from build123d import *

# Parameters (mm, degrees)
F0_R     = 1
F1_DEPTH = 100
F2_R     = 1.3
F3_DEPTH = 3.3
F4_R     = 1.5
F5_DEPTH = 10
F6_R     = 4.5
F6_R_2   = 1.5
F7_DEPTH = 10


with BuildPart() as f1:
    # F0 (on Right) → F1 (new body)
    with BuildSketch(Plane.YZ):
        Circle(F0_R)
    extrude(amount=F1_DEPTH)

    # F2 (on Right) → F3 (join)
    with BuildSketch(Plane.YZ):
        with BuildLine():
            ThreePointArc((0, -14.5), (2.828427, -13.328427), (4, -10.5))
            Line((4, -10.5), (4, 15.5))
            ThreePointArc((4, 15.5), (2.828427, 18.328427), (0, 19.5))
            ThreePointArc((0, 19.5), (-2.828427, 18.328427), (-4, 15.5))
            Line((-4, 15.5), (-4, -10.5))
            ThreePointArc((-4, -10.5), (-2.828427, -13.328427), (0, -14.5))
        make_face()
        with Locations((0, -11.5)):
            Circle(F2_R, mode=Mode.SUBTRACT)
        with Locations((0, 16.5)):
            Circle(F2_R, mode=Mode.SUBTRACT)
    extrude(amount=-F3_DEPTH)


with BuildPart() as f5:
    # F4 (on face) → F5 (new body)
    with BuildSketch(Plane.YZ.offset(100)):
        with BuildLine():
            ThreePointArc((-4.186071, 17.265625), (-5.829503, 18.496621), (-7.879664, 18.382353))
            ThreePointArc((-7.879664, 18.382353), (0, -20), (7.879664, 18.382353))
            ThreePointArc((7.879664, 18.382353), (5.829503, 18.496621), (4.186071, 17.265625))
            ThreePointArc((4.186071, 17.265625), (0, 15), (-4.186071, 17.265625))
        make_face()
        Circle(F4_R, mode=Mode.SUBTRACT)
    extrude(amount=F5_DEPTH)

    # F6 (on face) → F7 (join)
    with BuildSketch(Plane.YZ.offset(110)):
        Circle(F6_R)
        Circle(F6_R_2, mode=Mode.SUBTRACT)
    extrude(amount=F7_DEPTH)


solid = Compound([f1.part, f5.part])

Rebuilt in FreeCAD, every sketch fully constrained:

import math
import FreeCAD as App
import Part
import Sketcher

V = App.Vector

doc = App.newDocument("Part")
params = doc.addObject("Spreadsheet::Sheet", "Params")
for row, (alias, value) in enumerate([
    ("sketch1_diameter", "2 mm"),
    ("pad1_length", "100 mm"),
    ("sketch2_radius", "4 mm"),
    ("sketch2_diameter", "2.6 mm"),
    ("sketch2_height", "26 mm"),
    ("pad2_length", "3.3 mm"),
    ("sketch3_diameter", "3 mm"),
    ("sketch3_radius", "20 mm"),
    ("sketch3_radius2", "4.999999 mm"),
    ("pad3_length", "10 mm"),
    ("sketch4_diameter", "9 mm"),
    ("sketch4_diameter2", "3 mm"),
    ("pad4_length", "10 mm"),
], start=1):
    params.set(f"A{row}", alias)
    params.set(f"B{row}", "=" + value)
    params.setAlias(f"B{row}", alias)

body = doc.addObject("PartDesign::Body", "Body")

sketch1 = body.newObject("Sketcher::SketchObject", "Sketch")
sketch1.AttachmentSupport = (doc.getObject("YZ_Plane"), [""])
sketch1.MapMode = "FlatFace"
sketch1.addGeometry(Part.Circle(V(0, 0, 0), V(0, 0, 1), 1), False)
sketch1.addConstraint(Sketcher.Constraint("Coincident", 0, 3, -1, 1))
sketch1.addConstraint(Sketcher.Constraint("Diameter", 0, 2.0))
sketch1.setExpression("Constraints[1]", "Params.sketch1_diameter")
pad1 = body.newObject("PartDesign::Pad", "Pad")
pad1.Profile = sketch1
pad1.setExpression("Length", "Params.pad1_length")

sketch2 = body.newObject("Sketcher::SketchObject", "Sketch001")
sketch2.AttachmentSupport = (doc.getObject("YZ_Plane"), [""])
sketch2.MapMode = "FlatFace"
sketch2.addGeometry(Part.ArcOfCircle(Part.Circle(V(0, -10.5, 0), V(0, 0, 1), 4), math.radians(-90), math.radians(0)), False)
sketch2.addGeometry(Part.LineSegment(V(4, -10.5, 0), V(4, 15.5, 0)), False)
sketch2.addGeometry(Part.ArcOfCircle(Part.Circle(V(0, 15.5, 0), V(0, 0, 1), 4), math.radians(0), math.radians(90)), False)
sketch2.addGeometry(Part.ArcOfCircle(Part.Circle(V(0, 15.5, 0), V(0, 0, 1), 4), math.radians(90), math.radians(180)), False)
sketch2.addGeometry(Part.LineSegment(V(-4, 15.5, 0), V(-4, -10.5, 0)), False)
sketch2.addGeometry(Part.ArcOfCircle(Part.Circle(V(0, -10.5, 0), V(0, 0, 1), 4), math.radians(-180), math.radians(-90)), False)
sketch2.addGeometry(Part.Circle(V(0, -11.5, 0), V(0, 0, 1), 1.3), False)
sketch2.addGeometry(Part.Circle(V(0, 16.5, 0), V(0, 0, 1), 1.3), False)
sketch2.addConstraint(Sketcher.Constraint("Tangent", 0, 2, 1, 1))
sketch2.addConstraint(Sketcher.Constraint("Tangent", 1, 2, 2, 1))
sketch2.addConstraint(Sketcher.Constraint("Tangent", 2, 2, 3, 1))
sketch2.addConstraint(Sketcher.Constraint("Tangent", 3, 2, 4, 1))
sketch2.addConstraint(Sketcher.Constraint("Tangent", 4, 2, 5, 1))
sketch2.addConstraint(Sketcher.Constraint("Tangent", 5, 2, 0, 1))
sketch2.addConstraint(Sketcher.Constraint("Vertical", 1))
sketch2.addConstraint(Sketcher.Constraint("Vertical", 4))
sketch2.addConstraint(Sketcher.Constraint("Equal", 0, 2))
sketch2.addConstraint(Sketcher.Constraint("Equal", 2, 3))
sketch2.addConstraint(Sketcher.Constraint("Equal", 6, 7))
sketch2.addConstraint(Sketcher.Constraint("PointOnObject", 0, 3, -2))
sketch2.addConstraint(Sketcher.Constraint("PointOnObject", 6, 3, -2))
sketch2.addConstraint(Sketcher.Constraint("PointOnObject", 7, 3, -2))
sketch2.addConstraint(Sketcher.Constraint("PointOnObject", 2, 2, -2))
sketch2.addConstraint(Sketcher.Constraint("PointOnObject", 5, 2, -2))
sketch2.addConstraint(Sketcher.Constraint("Radius", 0, 4.0))
sketch2.addConstraint(Sketcher.Constraint("Diameter", 6, 2.6))
sketch2.addConstraint(Sketcher.Constraint("DistanceY", 1, 1, 1, 2, 26.0))
sketch2.addConstraint(Sketcher.Constraint("DistanceY", 6, 3, 0, 3, 1.0))
sketch2.addConstraint(Sketcher.Constraint("DistanceY", 2, 3, 7, 3, 1.0))
sketch2.addConstraint(Sketcher.Constraint("DistanceY", 0, 3, -1, 1, 10.5))
sketch2.setExpression("Constraints[16]", "Params.sketch2_radius")
sketch2.setExpression("Constraints[17]", "Params.sketch2_diameter")
sketch2.setExpression("Constraints[18]", "Params.sketch2_height")
pad2 = body.newObject("PartDesign::Pad", "Pad001")
pad2.Profile = sketch2
pad2.setExpression("Length", "Params.pad2_length")
pad2.Reversed = True
body2 = doc.addObject("PartDesign::Body", "Body001")

sketch3 = body2.newObject("Sketcher::SketchObject", "Sketch002")
sketch3.AttachmentSupport = (doc.getObject("YZ_Plane001"), [""])
sketch3.MapMode = "FlatFace"
sketch3.AttachmentOffset = App.Placement(V(0, 0, 100), App.Rotation())
sketch3.addGeometry(Part.ArcOfCircle(Part.Circle(V(-6.7, 15.6, 0), V(0, 0, 1), 3), math.radians(33), math.radians(113)), False)
sketch3.addGeometry(Part.ArcOfCircle(Part.Circle(V(0, 0, 0), V(0, 0, 1), 20), math.radians(113), math.radians(427)), False)
sketch3.addGeometry(Part.ArcOfCircle(Part.Circle(V(6.7, 15.6, 0), V(0, 0, 1), 3), math.radians(67), math.radians(147)), False)
sketch3.addGeometry(Part.ArcOfCircle(Part.Circle(V(0, 20, 0), V(0, 0, 1), 5), math.radians(-147), math.radians(-33)), False)
sketch3.addGeometry(Part.Circle(V(0, 0, 0), V(0, 0, 1), 1.5), False)
sketch3.addConstraint(Sketcher.Constraint("Tangent", 0, 2, 1, 1))
sketch3.addConstraint(Sketcher.Constraint("Tangent", 1, 2, 2, 1))
sketch3.addConstraint(Sketcher.Constraint("Tangent", 2, 2, 3, 2))
sketch3.addConstraint(Sketcher.Constraint("Tangent", 3, 1, 0, 1))
sketch3.addConstraint(Sketcher.Constraint("Coincident", 1, 3, -1, 1))
sketch3.addConstraint(Sketcher.Constraint("Coincident", 4, 3, -1, 1))
sketch3.addConstraint(Sketcher.Constraint("Equal", 0, 2))
sketch3.addConstraint(Sketcher.Constraint("PointOnObject", 3, 3, -2))
sketch3.addConstraint(Sketcher.Constraint("Diameter", 4, 3.0))
sketch3.addConstraint(Sketcher.Constraint("Radius", 1, 20.0))
sketch3.addConstraint(Sketcher.Constraint("Radius", 3, 4.999999))
sketch3.addConstraint(Sketcher.Constraint("DistanceY", -1, 1, 3, 3, 19.999999))
sketch3.addConstraint(Sketcher.Constraint("Radius", 0, 3.000002))
sketch3.setExpression("Constraints[8]", "Params.sketch3_diameter")
sketch3.setExpression("Constraints[9]", "Params.sketch3_radius")
sketch3.setExpression("Constraints[10]", "Params.sketch3_radius2")
pad3 = body2.newObject("PartDesign::Pad", "Pad002")
pad3.Profile = sketch3
pad3.setExpression("Length", "Params.pad3_length")

sketch4 = body2.newObject("Sketcher::SketchObject", "Sketch003")
sketch4.AttachmentSupport = (doc.getObject("YZ_Plane001"), [""])
sketch4.MapMode = "FlatFace"
sketch4.AttachmentOffset = App.Placement(V(0, 0, 110), App.Rotation())
sketch4.addGeometry(Part.Circle(V(0, 0, 0), V(0, 0, 1), 4.5), False)
sketch4.addGeometry(Part.Circle(V(0, 0, 0), V(0, 0, 1), 1.5), False)
sketch4.addConstraint(Sketcher.Constraint("Coincident", 0, 3, -1, 1))
sketch4.addConstraint(Sketcher.Constraint("Coincident", 1, 3, -1, 1))
sketch4.addConstraint(Sketcher.Constraint("Diameter", 0, 9.0))
sketch4.addConstraint(Sketcher.Constraint("Diameter", 1, 3.0))
sketch4.setExpression("Constraints[2]", "Params.sketch4_diameter")
sketch4.setExpression("Constraints[3]", "Params.sketch4_diameter2")
pad4 = body2.newObject("PartDesign::Pad", "Pad003")
pad4.Profile = sketch4
pad4.setExpression("Length", "Params.pad4_length")

doc.recompute()
